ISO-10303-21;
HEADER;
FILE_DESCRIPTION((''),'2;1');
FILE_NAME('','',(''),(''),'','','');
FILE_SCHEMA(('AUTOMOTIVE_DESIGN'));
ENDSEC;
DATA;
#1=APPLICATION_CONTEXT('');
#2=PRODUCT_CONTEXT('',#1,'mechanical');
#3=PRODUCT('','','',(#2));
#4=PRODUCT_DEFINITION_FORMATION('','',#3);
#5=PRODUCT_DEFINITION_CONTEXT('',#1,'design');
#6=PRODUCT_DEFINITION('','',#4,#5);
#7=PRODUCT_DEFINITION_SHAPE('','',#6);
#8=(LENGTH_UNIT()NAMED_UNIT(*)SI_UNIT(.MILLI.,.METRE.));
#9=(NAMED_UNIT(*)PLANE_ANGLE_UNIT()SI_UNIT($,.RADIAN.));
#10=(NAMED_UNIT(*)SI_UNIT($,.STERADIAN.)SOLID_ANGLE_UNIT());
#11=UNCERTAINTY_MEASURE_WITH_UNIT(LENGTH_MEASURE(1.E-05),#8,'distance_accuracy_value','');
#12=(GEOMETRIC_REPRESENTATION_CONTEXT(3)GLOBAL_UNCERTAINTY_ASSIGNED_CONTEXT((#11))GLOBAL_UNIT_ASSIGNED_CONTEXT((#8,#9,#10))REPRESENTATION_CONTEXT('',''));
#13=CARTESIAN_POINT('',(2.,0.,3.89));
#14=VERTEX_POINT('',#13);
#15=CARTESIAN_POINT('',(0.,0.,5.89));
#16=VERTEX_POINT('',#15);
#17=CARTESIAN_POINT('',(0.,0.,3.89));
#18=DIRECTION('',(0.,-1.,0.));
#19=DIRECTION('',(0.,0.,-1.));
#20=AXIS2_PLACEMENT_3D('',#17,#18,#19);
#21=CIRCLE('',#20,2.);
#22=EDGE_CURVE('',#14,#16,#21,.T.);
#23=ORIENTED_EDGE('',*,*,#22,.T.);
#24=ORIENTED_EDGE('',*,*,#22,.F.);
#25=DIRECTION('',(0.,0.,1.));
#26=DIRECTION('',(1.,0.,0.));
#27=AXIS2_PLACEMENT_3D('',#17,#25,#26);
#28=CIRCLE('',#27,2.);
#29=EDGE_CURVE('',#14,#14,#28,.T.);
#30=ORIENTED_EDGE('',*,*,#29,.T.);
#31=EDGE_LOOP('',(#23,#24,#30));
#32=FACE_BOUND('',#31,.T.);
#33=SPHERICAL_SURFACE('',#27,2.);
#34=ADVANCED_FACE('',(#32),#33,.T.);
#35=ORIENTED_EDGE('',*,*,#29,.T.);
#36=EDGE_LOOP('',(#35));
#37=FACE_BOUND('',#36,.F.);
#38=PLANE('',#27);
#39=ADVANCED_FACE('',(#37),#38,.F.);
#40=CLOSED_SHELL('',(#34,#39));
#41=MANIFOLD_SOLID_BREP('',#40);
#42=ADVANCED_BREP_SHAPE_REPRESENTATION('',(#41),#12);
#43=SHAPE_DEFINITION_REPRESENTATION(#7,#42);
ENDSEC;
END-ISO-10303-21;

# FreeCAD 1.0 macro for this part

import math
import FreeCAD as App
import Part
import Sketcher

V = App.Vector

doc = App.newDocument("Part")
body = doc.addObject("PartDesign::Body", "Body")

sketch1 = body.newObject("Sketcher::SketchObject", "Sketch")
sketch1.AttachmentSupport = (doc.getObject("XY_Plane"), [""])
sketch1.MapMode = "FlatFace"
sketch1.AttachmentOffset = App.Placement(V(0, 0, -10), App.Rotation())
sketch1.addGeometry([
    Part.LineSegment(V(-5, 5, 0), V(-5, -5, 0)),
    Part.LineSegment(V(-5, -5, 0), V(5, -5, 0)),
    Part.LineSegment(V(5, -5, 0), V(5, 5, 0)),
    Part.LineSegment(V(5, 5, 0), V(-5, 5, 0)),
], False)
sketch1.addConstraint([
    Sketcher.Constraint("Coincident", 0, 2, 1, 1),
    Sketcher.Constraint("Coincident", 1, 2, 2, 1),
    Sketcher.Constraint("Coincident", 2, 2, 3, 1),
    Sketcher.Constraint("Coincident", 3, 2, 0, 1),
    Sketcher.Constraint("Vertical", 0),
    Sketcher.Constraint("Horizontal", 1),
    Sketcher.Constraint("Vertical", 2),
    Sketcher.Constraint("Horizontal", 3),
    Sketcher.Constraint("Symmetric", 0, 2, 2, 2, -1, 1),
    Sketcher.Constraint("Equal", 3, 0),
    Sketcher.Constraint("DistanceX", 1, 1, 1, 2, 10.0),
])
pad1 = body.newObject("PartDesign::Pad", "Pad")
pad1.Profile = sketch1
pad1.Length = 10
body2 = doc.addObject("PartDesign::Body", "Body001")

sketch2 = body2.newObject("Sketcher::SketchObject", "Sketch001")
sketch2.AttachmentSupport = (doc.getObject("XZ_Plane001"), [""])
sketch2.MapMode = "FlatFace"
sketch2.addGeometry([
    Part.ArcOfCircle(Part.Circle(V(0, 0, 0), V(0, 0, 1), 2), math.radians(-90), math.radians(90)),
    Part.LineSegment(V(0, 2, 0), V(0, -2, 0)),
], False)
sketch2.addConstraint([
    Sketcher.Constraint("Coincident", 0, 1, 1, 2),
    Sketcher.Constraint("Coincident", 1, 1, 0, 2),
    Sketcher.Constraint("Vertical", 1),
    Sketcher.Constraint("Coincident", 0, 3, -1, 1),
    Sketcher.Constraint("PointOnObject", 0, 1, -2),
    Sketcher.Constraint("Radius", 0, 2.0),
])
revolution = body2.newObject("PartDesign::Revolution", "Revolution")
revolution.Profile = sketch2
revolution.ReferenceAxis = (sketch2, ["V_Axis"])
revolution.Angle = 360
doc.recompute()

boolean = body2.newObject("PartDesign::Boolean", "Boolean")
boolean.Type = "Cut"
boolean.addObjects([body])
body3 = doc.addObject("PartDesign::Body", "Body002")
doc.recompute()

body2.Placement = App.Placement(V(0, 0, 3.89), App.Rotation(V(0, 0, 1), 0))
boolean2 = body3.newObject("PartDesign::Boolean", "Boolean001")
boolean2.Type = "Fuse"
boolean2.addObjects([body2])

doc.recompute()
